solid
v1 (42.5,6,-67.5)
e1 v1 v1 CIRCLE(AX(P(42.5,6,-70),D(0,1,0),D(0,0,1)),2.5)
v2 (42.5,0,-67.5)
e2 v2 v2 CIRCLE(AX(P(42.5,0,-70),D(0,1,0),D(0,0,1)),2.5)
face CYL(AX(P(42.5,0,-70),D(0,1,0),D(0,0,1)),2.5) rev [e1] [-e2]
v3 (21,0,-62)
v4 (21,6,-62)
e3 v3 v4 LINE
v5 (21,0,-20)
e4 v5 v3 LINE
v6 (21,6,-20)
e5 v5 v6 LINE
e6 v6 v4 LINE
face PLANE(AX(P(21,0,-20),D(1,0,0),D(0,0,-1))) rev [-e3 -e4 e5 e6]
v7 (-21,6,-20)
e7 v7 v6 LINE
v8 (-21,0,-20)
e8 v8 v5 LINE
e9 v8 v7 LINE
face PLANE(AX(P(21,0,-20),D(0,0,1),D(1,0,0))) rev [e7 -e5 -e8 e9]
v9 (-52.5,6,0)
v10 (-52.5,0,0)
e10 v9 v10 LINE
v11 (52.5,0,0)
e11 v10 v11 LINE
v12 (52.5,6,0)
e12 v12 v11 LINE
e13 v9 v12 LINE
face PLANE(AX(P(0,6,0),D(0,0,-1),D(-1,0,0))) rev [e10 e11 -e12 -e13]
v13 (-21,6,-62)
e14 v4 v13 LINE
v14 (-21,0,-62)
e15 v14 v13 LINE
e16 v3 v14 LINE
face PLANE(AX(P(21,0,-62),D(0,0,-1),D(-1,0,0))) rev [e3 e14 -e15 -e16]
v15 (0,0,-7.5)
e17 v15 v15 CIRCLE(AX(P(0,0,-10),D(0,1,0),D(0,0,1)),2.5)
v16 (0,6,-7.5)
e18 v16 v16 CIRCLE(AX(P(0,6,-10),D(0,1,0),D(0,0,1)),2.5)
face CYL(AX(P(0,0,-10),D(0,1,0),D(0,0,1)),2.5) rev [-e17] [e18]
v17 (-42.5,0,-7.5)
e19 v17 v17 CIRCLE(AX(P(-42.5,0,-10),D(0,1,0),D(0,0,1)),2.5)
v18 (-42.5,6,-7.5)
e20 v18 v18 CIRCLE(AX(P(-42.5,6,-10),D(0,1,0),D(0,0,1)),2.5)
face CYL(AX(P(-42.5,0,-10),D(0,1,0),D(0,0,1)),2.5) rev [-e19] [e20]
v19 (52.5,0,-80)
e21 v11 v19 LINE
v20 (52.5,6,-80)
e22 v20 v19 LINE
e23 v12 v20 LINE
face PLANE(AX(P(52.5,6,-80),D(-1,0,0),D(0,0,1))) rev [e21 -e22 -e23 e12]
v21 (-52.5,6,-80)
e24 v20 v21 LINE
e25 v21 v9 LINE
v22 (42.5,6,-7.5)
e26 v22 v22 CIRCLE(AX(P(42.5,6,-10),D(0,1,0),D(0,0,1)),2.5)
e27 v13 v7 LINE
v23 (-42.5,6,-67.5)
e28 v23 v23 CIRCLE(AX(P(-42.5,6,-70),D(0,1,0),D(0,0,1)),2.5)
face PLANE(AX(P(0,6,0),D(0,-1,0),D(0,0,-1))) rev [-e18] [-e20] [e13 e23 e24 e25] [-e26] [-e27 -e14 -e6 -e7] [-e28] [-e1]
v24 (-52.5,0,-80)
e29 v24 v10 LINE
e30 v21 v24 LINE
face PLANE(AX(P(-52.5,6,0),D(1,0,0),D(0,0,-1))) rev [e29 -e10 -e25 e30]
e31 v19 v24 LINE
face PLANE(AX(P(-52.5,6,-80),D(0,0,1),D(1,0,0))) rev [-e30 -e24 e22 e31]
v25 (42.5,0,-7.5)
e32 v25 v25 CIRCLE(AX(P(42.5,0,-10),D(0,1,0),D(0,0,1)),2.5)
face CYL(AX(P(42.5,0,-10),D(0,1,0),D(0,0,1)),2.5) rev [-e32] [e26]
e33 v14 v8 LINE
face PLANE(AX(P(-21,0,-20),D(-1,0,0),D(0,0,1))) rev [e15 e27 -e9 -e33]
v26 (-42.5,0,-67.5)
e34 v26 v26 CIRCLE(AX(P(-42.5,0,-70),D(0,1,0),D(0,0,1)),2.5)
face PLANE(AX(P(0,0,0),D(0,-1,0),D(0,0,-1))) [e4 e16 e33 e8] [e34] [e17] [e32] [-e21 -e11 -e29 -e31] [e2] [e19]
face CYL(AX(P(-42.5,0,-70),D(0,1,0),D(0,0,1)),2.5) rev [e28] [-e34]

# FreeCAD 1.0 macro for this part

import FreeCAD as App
import Part
import Sketcher
from FreeCAD import Vector


def add_polygon(sketch, points):
    """Adds a closed chain of lines whose ends are joined by coincident constraints."""
    first, n = sketch.GeometryCount, len(points)
    for a, b in zip(points, points[1:] + points[:1]):
        sketch.addGeometry(Part.LineSegment(App.Vector(*a, 0), App.Vector(*b, 0)), False)
    for i in range(n):
        sketch.addConstraint(Sketcher.Constraint("Coincident", first + i, 2, first + (i + 1) % n, 1))

doc = App.newDocument("Part")
params = doc.addObject("Spreadsheet::Sheet", "Params")
for row, (alias, value) in enumerate([
    ("sketch1_width", "105 mm"),
    ("sketch1_height", "80 mm"),
    ("pad1_length", "6 mm"),
    ("sketch2_diameter", "5 mm"),
    ("sketch2_width", "42 mm"),
], start=1):
    params.set(f"A{row}", alias)
    params.set(f"B{row}", "=" + value)
    params.setAlias(f"B{row}", alias)

body = doc.addObject("PartDesign::Body", "Body")

# Sketch on XZ plane
sketch1 = body.newObject("Sketcher::SketchObject", "Sketch")
sketch1.AttachmentSupport = (doc.getObject("XZ_Plane"), [""])
sketch1.MapMode = "FlatFace"
add_polygon(sketch1, [(-52.5, 0), (52.5, 0), (52.5, -80), (-52.5, -80)])  # lines 0-3
sketch1.addConstraint([
    Sketcher.Constraint("Horizontal", 0),
    Sketcher.Constraint("Vertical", 1),
    Sketcher.Constraint("Horizontal", 2),
    Sketcher.Constraint("Vertical", 3),
    Sketcher.Constraint("Symmetric", 0, 2, 3, 2, -1, 1),
    Sketcher.Constraint("DistanceX", 0, 1, 0, 2, 105.0),
    Sketcher.Constraint("DistanceY", 1, 2, 1, 1, 80.0),
])
sketch1.setExpression("Constraints[9]", "Params.sketch1_width")
sketch1.setExpression("Constraints[10]", "Params.sketch1_height")
pad1 = body.newObject("PartDesign::Pad", "Pad")
pad1.Profile = sketch1
pad1.setExpression("Length", "Params.pad1_length")
pad1.Reversed = True

# Sketch on XZ plane
sketch2 = body.newObject("Sketcher::SketchObject", "Sketch001")
sketch2.AttachmentSupport = (doc.getObject("XZ_Plane"), [""])
sketch2.MapMode = "FlatFace"
sketch2.AttachmentOffset = App.Placement(Vector(0, 0, -6), App.Rotation())
sketch2.addGeometry(Part.Circle(Vector(-42.5, -70, 0), Vector(0, 0, 1), 2.5), False)  # 0
sketch2.addGeometry(Part.Circle(Vector(42.5, -70, 0), Vector(0, 0, 1), 2.5), False)  # 1
sketch2.addGeometry(Part.Circle(Vector(42.5, -10, 0), Vector(0, 0, 1), 2.5), False)  # 2
sketch2.addGeometry(Part.Circle(Vector(0, -10, 0), Vector(0, 0, 1), 2.5), False)  # 3
sketch2.addGeometry(Part.Circle(Vector(-42.5, -10, 0), Vector(0, 0, 1), 2.5), False)  # 4
add_polygon(sketch2, [(-21, -62), (-21, -20), (21, -20), (21, -62)])  # lines 5-8
sketch2.addConstraint([
    Sketcher.Constraint("Vertical", 5),
    Sketcher.Constraint("Horizontal", 6),
    Sketcher.Constraint("Vertical", 7),
    Sketcher.Constraint("Horizontal", 8),
    Sketcher.Constraint("Equal", 0, 1),
    Sketcher.Constraint("Equal", 1, 2),
    Sketcher.Constraint("Equal", 2, 3),
    Sketcher.Constraint("Equal", 3, 4),
    Sketcher.Constraint("Symmetric", 0, 3, 1, 3, -2),
    Sketcher.Constraint("Symmetric", 2, 3, 4, 3, -2),
    Sketcher.Constraint("PointOnObject", 3, 3, -2),
    Sketcher.Constraint("Horizontal", 2, 3, 3, 3),
    Sketcher.Constraint("Vertical", 1, 3, 2, 3),
    Sketcher.Constraint("Equal", 8, 5),
    Sketcher.Constraint("Diameter", 0, 5.0),
    Sketcher.Constraint("DistanceX", 6, 1, 6, 2, 42.0),
    Sketcher.Constraint("DistanceY", 0, 3, -1, 1, 70.0),
    Sketcher.Constraint("DistanceY", 2, 3, -1, 1, 10.0),
    Sketcher.Constraint("DistanceX", 5, 2, -1, 1, 21.0),
    Sketcher.Constraint("DistanceY", 5, 2, -1, 1, 20.0),
    Sketcher.Constraint("DistanceX", 0, 3, 1, 3, 85.0),
])
sketch2.setExpression("Constraints[18]", "Params.sketch2_diameter")
sketch2.setExpression("Constraints[19]", "Params.sketch2_width")
pocket1 = body.newObject("PartDesign::Pocket", "Pocket")
pocket1.Profile = sketch2
pocket1.Type = "ThroughAll"
pocket1.Reversed = True

doc.recompute()
